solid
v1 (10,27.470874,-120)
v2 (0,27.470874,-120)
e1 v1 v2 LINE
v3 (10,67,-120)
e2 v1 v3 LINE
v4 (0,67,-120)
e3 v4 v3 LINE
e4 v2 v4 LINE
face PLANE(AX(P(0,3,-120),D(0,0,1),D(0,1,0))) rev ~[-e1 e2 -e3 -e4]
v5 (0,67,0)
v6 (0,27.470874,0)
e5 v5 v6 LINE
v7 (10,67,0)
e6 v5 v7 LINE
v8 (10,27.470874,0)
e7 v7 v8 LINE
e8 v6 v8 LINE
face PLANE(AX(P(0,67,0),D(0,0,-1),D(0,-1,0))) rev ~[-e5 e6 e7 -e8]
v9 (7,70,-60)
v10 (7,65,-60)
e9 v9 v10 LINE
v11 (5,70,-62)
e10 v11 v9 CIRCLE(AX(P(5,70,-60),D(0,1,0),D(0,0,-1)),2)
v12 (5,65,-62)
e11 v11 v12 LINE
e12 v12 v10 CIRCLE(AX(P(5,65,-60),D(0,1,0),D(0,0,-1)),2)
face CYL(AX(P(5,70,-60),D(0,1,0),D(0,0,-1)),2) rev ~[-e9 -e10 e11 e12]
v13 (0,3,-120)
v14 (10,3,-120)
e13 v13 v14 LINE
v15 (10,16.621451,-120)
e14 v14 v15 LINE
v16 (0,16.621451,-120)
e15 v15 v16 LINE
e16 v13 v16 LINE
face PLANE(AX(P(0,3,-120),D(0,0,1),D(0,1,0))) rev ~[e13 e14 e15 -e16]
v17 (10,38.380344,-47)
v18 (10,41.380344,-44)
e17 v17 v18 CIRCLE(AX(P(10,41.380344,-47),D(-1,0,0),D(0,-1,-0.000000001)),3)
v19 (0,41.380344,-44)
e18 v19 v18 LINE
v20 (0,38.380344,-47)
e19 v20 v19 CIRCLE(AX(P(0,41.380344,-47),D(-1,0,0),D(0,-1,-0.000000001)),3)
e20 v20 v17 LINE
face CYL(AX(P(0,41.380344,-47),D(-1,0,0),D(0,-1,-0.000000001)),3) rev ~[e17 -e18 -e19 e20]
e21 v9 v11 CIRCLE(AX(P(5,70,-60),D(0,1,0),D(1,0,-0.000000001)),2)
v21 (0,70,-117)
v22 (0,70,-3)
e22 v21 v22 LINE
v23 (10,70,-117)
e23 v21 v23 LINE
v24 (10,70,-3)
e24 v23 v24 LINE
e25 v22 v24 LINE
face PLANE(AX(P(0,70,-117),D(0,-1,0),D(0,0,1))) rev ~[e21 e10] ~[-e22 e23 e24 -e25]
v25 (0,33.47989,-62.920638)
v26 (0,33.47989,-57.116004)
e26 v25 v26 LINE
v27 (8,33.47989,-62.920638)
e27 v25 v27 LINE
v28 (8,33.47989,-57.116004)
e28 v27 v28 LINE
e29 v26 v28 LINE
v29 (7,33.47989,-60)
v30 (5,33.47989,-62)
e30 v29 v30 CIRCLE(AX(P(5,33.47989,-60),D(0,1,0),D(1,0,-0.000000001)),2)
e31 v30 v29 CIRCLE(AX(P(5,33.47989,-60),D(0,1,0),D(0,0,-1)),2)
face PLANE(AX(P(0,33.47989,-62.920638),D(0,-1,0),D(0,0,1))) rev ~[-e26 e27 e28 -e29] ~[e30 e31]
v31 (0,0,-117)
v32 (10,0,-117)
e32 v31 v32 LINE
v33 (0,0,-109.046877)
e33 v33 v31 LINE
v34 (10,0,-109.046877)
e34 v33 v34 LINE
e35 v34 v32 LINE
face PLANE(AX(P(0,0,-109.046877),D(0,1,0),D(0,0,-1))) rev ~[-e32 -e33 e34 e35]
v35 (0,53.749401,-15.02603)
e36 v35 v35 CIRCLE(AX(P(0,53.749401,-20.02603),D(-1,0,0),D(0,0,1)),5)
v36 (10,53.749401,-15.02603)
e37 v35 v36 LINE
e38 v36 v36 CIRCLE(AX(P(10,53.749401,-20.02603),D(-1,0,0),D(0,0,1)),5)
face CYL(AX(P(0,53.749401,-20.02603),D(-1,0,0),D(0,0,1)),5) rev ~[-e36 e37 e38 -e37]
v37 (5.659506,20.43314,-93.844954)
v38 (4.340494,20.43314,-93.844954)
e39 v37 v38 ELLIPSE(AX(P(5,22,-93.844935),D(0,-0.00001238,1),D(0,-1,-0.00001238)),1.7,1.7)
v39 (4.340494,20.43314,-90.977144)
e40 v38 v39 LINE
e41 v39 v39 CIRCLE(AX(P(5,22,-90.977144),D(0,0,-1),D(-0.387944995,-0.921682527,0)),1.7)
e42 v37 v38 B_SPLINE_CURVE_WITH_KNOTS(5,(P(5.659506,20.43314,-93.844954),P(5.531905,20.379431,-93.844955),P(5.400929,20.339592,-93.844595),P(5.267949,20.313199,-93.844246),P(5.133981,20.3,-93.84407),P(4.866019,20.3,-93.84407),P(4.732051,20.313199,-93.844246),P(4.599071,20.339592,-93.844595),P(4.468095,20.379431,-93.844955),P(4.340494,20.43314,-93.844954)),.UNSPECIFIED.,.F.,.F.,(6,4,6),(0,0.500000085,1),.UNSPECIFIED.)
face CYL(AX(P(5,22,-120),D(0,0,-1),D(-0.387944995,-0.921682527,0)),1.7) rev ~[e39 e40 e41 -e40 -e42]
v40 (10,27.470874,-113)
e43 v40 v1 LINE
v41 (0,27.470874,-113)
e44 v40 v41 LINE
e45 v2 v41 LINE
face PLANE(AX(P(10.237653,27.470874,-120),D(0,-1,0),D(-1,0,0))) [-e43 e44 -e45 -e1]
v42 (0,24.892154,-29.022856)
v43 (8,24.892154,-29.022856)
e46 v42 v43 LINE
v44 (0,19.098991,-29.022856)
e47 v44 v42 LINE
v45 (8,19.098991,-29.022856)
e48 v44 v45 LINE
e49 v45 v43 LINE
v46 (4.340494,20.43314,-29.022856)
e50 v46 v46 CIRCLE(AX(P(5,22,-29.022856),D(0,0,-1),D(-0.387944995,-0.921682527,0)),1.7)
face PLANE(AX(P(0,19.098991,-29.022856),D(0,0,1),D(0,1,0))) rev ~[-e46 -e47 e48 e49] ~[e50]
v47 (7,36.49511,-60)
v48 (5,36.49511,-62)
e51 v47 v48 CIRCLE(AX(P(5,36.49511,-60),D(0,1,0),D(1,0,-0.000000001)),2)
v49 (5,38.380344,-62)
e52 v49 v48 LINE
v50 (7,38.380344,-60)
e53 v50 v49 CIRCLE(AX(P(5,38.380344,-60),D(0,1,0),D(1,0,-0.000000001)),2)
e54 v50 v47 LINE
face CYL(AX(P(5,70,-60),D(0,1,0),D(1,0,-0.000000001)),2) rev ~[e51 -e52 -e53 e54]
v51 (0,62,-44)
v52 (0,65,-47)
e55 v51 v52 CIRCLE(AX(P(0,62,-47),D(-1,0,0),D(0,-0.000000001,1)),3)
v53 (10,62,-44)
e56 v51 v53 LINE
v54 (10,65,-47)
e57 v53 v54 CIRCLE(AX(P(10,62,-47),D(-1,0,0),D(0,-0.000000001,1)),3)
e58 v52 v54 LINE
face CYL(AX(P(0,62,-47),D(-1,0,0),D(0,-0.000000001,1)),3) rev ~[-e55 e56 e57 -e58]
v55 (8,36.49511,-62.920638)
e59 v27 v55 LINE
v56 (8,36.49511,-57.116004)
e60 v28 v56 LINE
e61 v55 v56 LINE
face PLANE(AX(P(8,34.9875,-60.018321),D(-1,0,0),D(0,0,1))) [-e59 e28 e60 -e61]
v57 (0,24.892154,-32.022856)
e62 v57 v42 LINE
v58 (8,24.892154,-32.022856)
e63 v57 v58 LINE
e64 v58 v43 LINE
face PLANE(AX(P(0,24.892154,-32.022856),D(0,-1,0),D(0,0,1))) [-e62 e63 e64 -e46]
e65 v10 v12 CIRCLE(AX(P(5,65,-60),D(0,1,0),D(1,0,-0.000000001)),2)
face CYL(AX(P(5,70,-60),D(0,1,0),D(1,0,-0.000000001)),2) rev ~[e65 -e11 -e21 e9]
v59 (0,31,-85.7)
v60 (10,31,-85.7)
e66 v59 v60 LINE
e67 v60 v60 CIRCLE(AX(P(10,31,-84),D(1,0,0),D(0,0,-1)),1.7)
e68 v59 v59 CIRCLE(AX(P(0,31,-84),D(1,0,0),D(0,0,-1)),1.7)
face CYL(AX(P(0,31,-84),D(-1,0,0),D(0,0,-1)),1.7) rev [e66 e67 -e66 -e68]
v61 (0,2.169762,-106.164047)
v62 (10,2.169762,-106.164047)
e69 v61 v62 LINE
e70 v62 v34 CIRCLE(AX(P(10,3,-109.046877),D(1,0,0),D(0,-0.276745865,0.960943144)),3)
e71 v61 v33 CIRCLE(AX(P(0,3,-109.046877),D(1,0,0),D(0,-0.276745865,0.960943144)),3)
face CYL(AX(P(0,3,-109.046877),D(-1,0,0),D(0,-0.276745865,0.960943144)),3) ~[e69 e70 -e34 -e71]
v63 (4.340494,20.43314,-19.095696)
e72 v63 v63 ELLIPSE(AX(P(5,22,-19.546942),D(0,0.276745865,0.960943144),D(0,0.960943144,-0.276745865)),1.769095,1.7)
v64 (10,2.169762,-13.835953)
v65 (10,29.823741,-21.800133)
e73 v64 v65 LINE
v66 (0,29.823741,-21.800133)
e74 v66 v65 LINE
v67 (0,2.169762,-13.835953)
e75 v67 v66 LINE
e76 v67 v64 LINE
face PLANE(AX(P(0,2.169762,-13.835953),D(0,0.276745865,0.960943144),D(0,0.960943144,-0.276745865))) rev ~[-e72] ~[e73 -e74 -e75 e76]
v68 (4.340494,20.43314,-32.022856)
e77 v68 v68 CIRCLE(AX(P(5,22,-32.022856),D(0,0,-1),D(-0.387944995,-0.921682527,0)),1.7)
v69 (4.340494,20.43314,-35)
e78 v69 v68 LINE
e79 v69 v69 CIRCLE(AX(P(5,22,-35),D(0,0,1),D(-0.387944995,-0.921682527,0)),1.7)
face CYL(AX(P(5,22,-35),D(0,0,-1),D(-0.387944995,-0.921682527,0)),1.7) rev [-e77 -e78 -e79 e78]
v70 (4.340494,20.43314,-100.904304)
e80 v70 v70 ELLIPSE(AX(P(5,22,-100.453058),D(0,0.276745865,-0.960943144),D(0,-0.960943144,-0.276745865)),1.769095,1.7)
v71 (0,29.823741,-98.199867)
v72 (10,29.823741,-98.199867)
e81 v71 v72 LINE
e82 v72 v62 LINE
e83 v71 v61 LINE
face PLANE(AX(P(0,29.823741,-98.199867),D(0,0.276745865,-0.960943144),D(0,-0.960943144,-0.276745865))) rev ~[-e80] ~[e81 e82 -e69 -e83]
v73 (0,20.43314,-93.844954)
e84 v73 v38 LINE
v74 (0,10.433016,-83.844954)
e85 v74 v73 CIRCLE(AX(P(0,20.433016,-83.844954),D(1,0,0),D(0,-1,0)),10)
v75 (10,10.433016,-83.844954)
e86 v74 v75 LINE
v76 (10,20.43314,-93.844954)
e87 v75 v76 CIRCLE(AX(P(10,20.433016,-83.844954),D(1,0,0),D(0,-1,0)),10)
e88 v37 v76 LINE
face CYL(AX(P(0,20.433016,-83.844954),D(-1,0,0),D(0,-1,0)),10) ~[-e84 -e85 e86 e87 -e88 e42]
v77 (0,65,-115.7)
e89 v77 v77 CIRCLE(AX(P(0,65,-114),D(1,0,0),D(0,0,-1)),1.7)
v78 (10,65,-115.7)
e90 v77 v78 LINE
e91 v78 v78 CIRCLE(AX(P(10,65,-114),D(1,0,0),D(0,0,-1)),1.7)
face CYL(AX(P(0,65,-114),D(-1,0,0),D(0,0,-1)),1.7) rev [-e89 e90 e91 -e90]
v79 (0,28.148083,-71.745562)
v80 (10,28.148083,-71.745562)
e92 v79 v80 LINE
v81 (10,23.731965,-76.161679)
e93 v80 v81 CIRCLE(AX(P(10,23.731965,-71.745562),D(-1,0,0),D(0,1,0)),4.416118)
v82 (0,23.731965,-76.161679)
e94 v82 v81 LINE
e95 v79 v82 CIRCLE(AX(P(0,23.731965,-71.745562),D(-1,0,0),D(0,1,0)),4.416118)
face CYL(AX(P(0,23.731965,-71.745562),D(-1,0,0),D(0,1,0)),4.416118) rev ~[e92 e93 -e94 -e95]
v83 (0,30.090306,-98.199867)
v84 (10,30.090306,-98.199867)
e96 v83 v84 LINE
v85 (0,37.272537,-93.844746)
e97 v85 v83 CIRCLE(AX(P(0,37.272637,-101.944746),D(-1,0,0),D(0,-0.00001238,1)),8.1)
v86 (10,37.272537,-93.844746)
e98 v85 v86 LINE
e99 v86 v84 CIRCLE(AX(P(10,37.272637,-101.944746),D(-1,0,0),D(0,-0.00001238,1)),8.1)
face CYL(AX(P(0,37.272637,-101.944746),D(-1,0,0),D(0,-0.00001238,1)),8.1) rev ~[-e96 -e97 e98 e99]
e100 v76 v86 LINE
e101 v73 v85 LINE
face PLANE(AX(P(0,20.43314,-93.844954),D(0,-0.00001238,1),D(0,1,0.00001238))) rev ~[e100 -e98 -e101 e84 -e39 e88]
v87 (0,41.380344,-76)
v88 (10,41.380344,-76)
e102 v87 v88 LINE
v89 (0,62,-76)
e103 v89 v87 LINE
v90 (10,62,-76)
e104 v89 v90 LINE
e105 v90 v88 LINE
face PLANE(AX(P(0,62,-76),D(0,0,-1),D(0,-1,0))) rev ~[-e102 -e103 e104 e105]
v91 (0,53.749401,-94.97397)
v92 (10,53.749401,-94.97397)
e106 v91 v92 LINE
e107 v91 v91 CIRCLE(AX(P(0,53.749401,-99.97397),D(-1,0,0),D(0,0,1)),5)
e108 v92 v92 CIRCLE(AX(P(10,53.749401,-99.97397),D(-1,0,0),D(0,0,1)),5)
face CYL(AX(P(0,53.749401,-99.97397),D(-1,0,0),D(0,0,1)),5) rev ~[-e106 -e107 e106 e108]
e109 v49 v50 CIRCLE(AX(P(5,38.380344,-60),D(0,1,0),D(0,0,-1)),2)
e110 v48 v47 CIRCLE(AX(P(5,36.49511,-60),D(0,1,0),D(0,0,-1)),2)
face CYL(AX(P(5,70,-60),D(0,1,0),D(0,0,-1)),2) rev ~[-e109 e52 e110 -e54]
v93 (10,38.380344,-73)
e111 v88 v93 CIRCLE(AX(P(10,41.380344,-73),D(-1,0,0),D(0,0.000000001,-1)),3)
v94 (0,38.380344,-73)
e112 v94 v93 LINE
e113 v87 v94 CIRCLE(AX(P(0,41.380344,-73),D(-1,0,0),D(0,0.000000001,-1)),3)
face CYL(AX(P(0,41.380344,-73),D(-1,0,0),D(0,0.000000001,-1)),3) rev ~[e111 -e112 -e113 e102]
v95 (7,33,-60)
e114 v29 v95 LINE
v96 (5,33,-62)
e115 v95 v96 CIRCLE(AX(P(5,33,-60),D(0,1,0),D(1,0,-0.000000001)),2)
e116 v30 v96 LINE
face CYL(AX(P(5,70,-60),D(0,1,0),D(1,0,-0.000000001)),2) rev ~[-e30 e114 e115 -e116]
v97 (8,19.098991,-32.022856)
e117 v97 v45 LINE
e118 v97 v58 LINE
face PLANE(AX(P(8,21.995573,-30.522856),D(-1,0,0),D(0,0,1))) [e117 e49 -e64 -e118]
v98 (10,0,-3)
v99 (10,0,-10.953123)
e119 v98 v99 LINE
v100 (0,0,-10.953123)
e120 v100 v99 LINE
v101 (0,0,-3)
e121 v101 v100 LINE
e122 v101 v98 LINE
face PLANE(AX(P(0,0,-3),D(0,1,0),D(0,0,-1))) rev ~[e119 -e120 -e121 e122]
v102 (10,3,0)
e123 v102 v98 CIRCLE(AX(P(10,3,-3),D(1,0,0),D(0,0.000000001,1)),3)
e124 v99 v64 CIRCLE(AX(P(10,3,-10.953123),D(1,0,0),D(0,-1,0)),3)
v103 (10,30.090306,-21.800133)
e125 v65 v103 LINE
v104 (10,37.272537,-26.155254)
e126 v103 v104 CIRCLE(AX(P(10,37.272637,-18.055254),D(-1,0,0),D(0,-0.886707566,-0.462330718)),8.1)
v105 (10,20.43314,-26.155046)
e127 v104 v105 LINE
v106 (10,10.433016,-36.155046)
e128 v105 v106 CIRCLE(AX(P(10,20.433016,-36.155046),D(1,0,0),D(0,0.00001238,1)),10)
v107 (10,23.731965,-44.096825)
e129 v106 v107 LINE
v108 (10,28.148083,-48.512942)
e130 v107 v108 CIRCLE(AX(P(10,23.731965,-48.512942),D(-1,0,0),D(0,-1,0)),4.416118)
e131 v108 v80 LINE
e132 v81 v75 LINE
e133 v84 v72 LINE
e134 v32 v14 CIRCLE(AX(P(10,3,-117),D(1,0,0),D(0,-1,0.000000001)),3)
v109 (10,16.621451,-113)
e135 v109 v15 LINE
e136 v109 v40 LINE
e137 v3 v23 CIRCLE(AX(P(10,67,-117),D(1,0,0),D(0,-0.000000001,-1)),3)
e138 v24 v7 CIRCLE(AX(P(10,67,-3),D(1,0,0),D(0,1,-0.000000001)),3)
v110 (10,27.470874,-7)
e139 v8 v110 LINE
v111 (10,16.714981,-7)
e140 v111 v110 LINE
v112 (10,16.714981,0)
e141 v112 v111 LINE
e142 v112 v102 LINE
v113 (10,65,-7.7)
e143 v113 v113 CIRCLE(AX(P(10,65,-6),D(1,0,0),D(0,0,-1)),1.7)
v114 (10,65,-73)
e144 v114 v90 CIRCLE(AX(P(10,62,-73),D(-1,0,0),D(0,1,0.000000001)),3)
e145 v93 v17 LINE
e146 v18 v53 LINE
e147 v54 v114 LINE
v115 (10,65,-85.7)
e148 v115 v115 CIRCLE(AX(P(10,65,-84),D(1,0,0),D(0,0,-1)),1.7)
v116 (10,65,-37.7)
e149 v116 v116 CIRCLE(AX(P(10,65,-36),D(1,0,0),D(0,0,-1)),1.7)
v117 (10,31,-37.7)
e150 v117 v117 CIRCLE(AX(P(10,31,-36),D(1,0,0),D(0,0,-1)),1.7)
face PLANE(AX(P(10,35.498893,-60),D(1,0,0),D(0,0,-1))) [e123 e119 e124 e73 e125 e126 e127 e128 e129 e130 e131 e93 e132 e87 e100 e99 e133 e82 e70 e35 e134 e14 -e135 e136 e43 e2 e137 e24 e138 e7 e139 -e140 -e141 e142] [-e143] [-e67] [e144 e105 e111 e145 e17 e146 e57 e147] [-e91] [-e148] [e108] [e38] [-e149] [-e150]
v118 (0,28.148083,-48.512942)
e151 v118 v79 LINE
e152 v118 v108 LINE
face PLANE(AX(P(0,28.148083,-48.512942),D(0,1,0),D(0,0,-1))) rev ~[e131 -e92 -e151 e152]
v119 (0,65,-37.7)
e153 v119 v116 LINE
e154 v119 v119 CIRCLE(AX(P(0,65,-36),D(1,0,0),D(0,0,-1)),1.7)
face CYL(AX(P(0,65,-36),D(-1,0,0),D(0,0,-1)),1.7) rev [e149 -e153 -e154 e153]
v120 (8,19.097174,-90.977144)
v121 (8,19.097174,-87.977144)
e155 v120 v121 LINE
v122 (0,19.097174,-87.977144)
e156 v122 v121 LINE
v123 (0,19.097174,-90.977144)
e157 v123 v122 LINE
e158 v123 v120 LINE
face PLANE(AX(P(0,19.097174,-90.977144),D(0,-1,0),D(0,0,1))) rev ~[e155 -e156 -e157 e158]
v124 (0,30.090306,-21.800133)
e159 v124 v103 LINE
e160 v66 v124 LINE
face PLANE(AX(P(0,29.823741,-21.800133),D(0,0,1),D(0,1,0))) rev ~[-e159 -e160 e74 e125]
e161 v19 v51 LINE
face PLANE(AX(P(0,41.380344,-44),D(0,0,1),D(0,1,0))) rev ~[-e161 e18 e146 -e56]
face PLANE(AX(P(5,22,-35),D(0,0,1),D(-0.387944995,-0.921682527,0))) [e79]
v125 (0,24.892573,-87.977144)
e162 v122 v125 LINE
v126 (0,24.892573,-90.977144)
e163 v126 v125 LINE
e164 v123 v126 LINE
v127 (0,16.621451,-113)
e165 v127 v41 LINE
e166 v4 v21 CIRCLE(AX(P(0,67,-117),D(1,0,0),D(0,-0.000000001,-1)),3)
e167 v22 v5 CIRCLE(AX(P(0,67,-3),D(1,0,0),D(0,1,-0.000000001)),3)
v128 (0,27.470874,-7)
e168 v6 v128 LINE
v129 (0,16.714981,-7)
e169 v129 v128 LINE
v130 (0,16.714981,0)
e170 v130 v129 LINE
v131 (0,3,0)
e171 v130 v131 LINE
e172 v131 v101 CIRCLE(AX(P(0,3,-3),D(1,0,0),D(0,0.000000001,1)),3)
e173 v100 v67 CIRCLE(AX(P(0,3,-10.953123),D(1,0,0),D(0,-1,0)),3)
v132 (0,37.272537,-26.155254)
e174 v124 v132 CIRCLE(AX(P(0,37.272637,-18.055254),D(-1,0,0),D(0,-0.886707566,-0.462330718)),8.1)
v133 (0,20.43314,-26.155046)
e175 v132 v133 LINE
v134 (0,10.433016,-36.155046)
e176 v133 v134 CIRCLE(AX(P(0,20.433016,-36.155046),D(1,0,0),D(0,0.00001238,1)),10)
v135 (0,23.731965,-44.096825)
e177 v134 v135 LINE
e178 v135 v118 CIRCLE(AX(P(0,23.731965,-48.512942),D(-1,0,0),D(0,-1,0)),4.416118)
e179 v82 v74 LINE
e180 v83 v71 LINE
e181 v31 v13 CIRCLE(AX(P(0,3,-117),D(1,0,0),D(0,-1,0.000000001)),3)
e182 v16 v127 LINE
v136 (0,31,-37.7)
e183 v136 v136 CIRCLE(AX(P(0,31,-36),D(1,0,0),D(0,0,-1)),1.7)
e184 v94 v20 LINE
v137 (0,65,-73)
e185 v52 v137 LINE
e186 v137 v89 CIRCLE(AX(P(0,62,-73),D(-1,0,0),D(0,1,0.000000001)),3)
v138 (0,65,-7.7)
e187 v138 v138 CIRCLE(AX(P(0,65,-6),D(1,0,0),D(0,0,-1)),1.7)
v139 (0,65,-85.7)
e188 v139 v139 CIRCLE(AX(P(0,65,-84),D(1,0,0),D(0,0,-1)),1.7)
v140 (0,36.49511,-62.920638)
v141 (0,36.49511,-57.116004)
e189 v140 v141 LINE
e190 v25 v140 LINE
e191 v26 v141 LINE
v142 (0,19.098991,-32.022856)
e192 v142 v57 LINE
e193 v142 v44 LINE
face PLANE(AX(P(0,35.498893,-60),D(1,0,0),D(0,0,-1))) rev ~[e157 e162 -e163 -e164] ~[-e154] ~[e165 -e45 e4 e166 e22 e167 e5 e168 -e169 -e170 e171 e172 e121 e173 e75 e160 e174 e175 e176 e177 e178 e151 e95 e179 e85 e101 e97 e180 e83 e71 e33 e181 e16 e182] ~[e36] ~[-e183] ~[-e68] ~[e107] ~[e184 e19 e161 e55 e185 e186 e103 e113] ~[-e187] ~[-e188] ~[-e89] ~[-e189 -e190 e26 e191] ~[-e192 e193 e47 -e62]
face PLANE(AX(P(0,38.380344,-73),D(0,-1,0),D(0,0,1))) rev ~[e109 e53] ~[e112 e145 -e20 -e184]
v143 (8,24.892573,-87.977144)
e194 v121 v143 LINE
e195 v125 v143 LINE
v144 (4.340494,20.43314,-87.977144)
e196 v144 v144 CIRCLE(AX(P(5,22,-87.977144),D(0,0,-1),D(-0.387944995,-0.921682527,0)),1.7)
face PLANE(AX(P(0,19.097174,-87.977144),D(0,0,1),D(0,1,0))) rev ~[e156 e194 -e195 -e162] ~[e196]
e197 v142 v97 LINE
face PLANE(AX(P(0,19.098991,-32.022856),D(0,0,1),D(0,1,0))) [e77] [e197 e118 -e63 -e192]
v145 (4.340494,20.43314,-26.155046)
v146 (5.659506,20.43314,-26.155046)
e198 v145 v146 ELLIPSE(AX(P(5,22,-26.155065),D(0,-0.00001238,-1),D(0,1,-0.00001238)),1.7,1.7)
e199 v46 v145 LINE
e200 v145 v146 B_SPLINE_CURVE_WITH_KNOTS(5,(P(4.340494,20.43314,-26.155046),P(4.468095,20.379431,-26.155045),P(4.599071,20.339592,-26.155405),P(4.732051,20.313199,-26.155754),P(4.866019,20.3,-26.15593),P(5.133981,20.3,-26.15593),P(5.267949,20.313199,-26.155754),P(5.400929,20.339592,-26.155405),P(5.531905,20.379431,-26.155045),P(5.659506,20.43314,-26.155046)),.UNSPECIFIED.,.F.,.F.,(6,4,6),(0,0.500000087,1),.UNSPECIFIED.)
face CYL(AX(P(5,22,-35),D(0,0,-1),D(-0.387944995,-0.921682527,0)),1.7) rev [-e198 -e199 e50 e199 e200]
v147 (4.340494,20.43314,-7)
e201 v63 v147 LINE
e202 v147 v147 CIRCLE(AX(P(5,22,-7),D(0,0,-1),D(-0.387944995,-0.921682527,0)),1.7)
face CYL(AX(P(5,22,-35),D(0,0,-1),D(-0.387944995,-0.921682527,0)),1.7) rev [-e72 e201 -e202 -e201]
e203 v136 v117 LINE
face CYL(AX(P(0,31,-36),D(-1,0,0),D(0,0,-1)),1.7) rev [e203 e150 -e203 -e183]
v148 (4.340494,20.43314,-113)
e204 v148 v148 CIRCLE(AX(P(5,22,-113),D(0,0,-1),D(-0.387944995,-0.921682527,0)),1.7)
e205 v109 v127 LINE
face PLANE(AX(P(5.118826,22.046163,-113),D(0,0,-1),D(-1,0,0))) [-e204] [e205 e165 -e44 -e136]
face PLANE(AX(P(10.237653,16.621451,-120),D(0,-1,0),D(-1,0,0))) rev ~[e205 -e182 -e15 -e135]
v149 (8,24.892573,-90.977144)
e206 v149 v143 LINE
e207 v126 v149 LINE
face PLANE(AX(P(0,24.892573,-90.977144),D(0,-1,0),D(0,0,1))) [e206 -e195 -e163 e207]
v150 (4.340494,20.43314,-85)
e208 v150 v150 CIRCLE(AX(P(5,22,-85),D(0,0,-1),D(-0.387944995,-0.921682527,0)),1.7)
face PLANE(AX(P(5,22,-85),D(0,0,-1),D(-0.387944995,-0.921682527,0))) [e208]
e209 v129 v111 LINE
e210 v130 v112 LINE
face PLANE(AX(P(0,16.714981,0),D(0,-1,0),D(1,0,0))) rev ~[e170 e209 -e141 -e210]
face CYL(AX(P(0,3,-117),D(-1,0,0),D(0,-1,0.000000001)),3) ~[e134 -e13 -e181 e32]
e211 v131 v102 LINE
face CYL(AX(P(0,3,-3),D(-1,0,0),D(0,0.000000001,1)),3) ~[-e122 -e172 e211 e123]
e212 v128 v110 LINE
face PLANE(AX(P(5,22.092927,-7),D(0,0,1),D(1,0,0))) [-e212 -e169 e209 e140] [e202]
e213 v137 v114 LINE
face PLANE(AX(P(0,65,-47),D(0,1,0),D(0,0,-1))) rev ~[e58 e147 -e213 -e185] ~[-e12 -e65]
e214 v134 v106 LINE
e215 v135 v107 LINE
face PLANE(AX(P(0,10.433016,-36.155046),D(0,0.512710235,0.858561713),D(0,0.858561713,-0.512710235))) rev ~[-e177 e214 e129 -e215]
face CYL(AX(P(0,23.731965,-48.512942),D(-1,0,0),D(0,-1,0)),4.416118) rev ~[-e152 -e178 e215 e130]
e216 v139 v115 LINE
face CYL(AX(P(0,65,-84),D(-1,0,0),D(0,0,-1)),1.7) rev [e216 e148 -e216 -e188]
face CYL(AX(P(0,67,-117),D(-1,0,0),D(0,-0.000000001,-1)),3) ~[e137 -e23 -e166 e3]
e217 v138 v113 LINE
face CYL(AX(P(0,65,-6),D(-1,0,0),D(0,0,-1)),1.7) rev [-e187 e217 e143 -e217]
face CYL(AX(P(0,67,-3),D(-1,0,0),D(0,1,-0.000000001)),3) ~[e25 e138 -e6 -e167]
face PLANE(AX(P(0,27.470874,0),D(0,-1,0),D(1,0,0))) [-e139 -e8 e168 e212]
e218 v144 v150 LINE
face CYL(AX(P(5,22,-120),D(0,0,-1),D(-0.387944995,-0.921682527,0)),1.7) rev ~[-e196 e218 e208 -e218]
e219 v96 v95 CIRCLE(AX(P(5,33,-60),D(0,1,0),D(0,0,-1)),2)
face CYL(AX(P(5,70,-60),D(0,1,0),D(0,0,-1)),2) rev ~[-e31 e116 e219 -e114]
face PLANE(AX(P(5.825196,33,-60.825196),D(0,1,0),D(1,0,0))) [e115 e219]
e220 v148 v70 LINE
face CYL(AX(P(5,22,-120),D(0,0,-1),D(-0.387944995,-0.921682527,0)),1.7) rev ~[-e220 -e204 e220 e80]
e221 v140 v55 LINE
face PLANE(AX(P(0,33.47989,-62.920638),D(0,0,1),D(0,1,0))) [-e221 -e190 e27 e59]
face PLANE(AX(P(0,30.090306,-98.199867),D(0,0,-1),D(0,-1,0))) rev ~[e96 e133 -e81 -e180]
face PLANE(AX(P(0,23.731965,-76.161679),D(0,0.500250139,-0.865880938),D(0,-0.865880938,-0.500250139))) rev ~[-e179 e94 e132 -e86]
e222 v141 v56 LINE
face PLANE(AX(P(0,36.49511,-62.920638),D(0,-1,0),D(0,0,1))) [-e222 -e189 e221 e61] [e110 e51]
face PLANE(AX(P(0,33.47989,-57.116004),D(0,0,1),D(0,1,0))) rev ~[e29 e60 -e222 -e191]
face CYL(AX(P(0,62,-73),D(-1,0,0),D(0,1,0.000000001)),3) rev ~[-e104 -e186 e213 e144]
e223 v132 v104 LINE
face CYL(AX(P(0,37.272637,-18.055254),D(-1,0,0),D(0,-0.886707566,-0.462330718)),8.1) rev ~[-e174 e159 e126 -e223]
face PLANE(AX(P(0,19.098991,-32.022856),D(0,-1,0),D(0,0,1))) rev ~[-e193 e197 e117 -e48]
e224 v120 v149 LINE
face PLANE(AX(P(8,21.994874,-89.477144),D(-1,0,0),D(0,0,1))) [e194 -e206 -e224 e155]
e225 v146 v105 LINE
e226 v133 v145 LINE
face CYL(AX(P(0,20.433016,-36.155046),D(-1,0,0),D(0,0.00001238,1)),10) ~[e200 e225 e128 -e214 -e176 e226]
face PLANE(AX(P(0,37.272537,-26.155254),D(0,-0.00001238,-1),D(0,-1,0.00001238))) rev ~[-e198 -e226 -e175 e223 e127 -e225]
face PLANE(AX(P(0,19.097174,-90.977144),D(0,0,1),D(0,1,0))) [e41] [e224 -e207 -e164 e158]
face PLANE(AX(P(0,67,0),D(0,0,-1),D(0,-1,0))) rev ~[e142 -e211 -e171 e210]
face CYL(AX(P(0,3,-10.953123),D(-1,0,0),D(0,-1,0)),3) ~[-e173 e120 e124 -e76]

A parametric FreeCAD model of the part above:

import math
import FreeCAD as App
import Part
import Sketcher
from FreeCAD import Vector

doc = App.newDocument("Part")
body = doc.addObject("PartDesign::Body", "Body")

sketch1 = body.newObject("Sketcher::SketchObject", "Sketch")
sketch1.AttachmentSupport = (doc.getObject("YZ_Plane"), [""])
sketch1.MapMode = "FlatFace"
sketch1.addGeometry([
    Part.LineSegment(Vector(0, -3, 0), Vector(0, -10.953123, 0)),
    Part.ArcOfCircle(Part.Circle(Vector(3, -10.953123, 0), Vector(0, 0, 1), 3), math.radians(180), math.radians(253.933917)),
    Part.LineSegment(Vector(2.169762, -13.835953, 0), Vector(29.823741, -21.800133, 0)),
    Part.LineSegment(Vector(29.823741, -21.800133, 0), Vector(30.090306, -21.800133, 0)),
    Part.ArcOfCircle(Part.Circle(Vector(37.272637, -18.055254, 0), Vector(0, 0, 1), 8.1), math.radians(-90.000709), math.radians(207.537607)),
    Part.LineSegment(Vector(37.272537, -26.155254, 0), Vector(20.43314, -26.155046, 0)),
    Part.ArcOfCircle(Part.Circle(Vector(20.433016, -36.155046, 0), Vector(0, 0, 1), 10), math.radians(89.999291), math.radians(180)),
    Part.LineSegment(Vector(10.433016, -36.155046, 0), Vector(10.433016, -83.844954, 0)),
    Part.ArcOfCircle(Part.Circle(Vector(20.433016, -83.844954, 0), Vector(0, 0, 1), 10), math.radians(180), math.radians(270.000709)),
    Part.LineSegment(Vector(20.43314, -93.844954, 0), Vector(37.272537, -93.844746, 0)),
    Part.ArcOfCircle(Part.Circle(Vector(37.272637, -101.944746, 0), Vector(0, 0, 1), 8.1), math.radians(152.462393), math.radians(450.000709)),
    Part.LineSegment(Vector(30.090306, -98.199867, 0), Vector(29.823741, -98.199867, 0)),
    Part.LineSegment(Vector(29.823741, -98.199867, 0), Vector(2.169762, -106.164047, 0)),
    Part.ArcOfCircle(Part.Circle(Vector(3, -109.046877, 0), Vector(0, 0, 1), 3), math.radians(106.066083), math.radians(180)),
    Part.LineSegment(Vector(0, -109.046877, 0), Vector(0, -117, 0)),
    Part.ArcOfCircle(Part.Circle(Vector(3, -117, 0), Vector(0, 0, 1), 3), math.radians(180), math.radians(270)),
    Part.LineSegment(Vector(3, -120, 0), Vector(67, -120, 0)),
    Part.ArcOfCircle(Part.Circle(Vector(67, -117, 0), Vector(0, 0, 1), 3), math.radians(-90), math.radians(0)),
    Part.LineSegment(Vector(70, -117, 0), Vector(70, -3, 0)),
    Part.ArcOfCircle(Part.Circle(Vector(67, -3, 0), Vector(0, 0, 1), 3), math.radians(0), math.radians(90)),
    Part.LineSegment(Vector(67, 0, 0), Vector(3, 0, 0)),
    Part.ArcOfCircle(Part.Circle(Vector(3, -3, 0), Vector(0, 0, 1), 3), math.radians(90), math.radians(180)),
    Part.Circle(Vector(31, -36, 0), Vector(0, 0, 1), 1.7),
    Part.ArcOfCircle(Part.Circle(Vector(23.731965, -48.512942, 0), Vector(0, 0, 1), 4.416118), math.radians(0), math.radians(180)),
    Part.LineSegment(Vector(28.148083, -48.512942, 0), Vector(28.148083, -71.745562, 0)),
    Part.ArcOfCircle(Part.Circle(Vector(23.731965, -71.745562, 0), Vector(0, 0, 1), 4.416118), math.radians(180), math.radians(360)),
    Part.LineSegment(Vector(19.315848, -71.745562, 0), Vector(19.315848, -48.512942, 0)),
    Part.Circle(Vector(31, -84, 0), Vector(0, 0, 1), 1.7),
    Part.Circle(Vector(65, -6, 0), Vector(0, 0, 1), 1.7),
    Part.Circle(Vector(65, -36, 0), Vector(0, 0, 1), 1.7),
    Part.ArcOfCircle(Part.Circle(Vector(62, -47, 0), Vector(0, 0, 1), 3), math.radians(0), math.radians(90)),
    Part.LineSegment(Vector(65, -47, 0), Vector(65, -73, 0)),
    Part.ArcOfCircle(Part.Circle(Vector(62, -73, 0), Vector(0, 0, 1), 3), math.radians(-90), math.radians(0)),
    Part.LineSegment(Vector(62, -76, 0), Vector(41.380344, -76, 0)),
    Part.ArcOfCircle(Part.Circle(Vector(41.380344, -73, 0), Vector(0, 0, 1), 3), math.radians(180), math.radians(270)),
    Part.LineSegment(Vector(38.380344, -73, 0), Vector(38.380344, -47, 0)),
    Part.ArcOfCircle(Part.Circle(Vector(41.380344, -47, 0), Vector(0, 0, 1), 3), math.radians(90), math.radians(180)),
    Part.LineSegment(Vector(41.380344, -44, 0), Vector(62, -44, 0)),
    Part.Circle(Vector(65, -84, 0), Vector(0, 0, 1), 1.7),
    Part.Circle(Vector(65, -114, 0), Vector(0, 0, 1), 1.7),
], False)
sketch1.addConstraint([
    Sketcher.Constraint("Coincident", 0, 2, 1, 1),
    Sketcher.Constraint("Coincident", 1, 2, 2, 1),
    Sketcher.Constraint("Coincident", 2, 2, 3, 1),
    Sketcher.Constraint("Coincident", 3, 2, 4, 2),
    Sketcher.Constraint("Coincident", 4, 1, 5, 1),
    Sketcher.Constraint("Coincident", 5, 2, 6, 1),
    Sketcher.Constraint("Coincident", 6, 2, 7, 1),
    Sketcher.Constraint("Coincident", 7, 2, 8, 1),
    Sketcher.Constraint("Coincident", 8, 2, 9, 1),
    Sketcher.Constraint("Coincident", 9, 2, 10, 2),
    Sketcher.Constraint("Coincident", 10, 1, 11, 1),
    Sketcher.Constraint("Coincident", 11, 2, 12, 1),
    Sketcher.Constraint("Coincident", 12, 2, 13, 1),
    Sketcher.Constraint("Coincident", 13, 2, 14, 1),
    Sketcher.Constraint("Coincident", 14, 2, 15, 1),
    Sketcher.Constraint("Coincident", 15, 2, 16, 1),
    Sketcher.Constraint("Coincident", 16, 2, 17, 1),
    Sketcher.Constraint("Coincident", 17, 2, 18, 1),
    Sketcher.Constraint("Coincident", 18, 2, 19, 1),
    Sketcher.Constraint("Coincident", 19, 2, 20, 1),
    Sketcher.Constraint("Coincident", 20, 2, 21, 1),
    Sketcher.Constraint("Coincident", 21, 2, 0, 1),
    Sketcher.Constraint("Coincident", 23, 1, 24, 1),
    Sketcher.Constraint("Coincident", 24, 2, 25, 2),
    Sketcher.Constraint("Coincident", 25, 1, 26, 1),
    Sketcher.Constraint("Coincident", 26, 2, 23, 2),
    Sketcher.Constraint("Coincident", 30, 1, 31, 1),
    Sketcher.Constraint("Coincident", 31, 2, 32, 2),
    Sketcher.Constraint("Coincident", 32, 1, 33, 1),
    Sketcher.Constraint("Coincident", 33, 2, 34, 2),
    Sketcher.Constraint("Coincident", 34, 1, 35, 1),
    Sketcher.Constraint("Coincident", 35, 2, 36, 2),
    Sketcher.Constraint("Coincident", 36, 1, 37, 1),
    Sketcher.Constraint("Coincident", 37, 2, 30, 2),
    Sketcher.Constraint("Vertical", 0),
    Sketcher.Constraint("Horizontal", 3),
    Sketcher.Constraint("Vertical", 7),
    Sketcher.Constraint("Horizontal", 11),
    Sketcher.Constraint("Vertical", 14),
    Sketcher.Constraint("Horizontal", 16),
    Sketcher.Constraint("Vertical", 18),
    Sketcher.Constraint("Horizontal", 20),
    Sketcher.Constraint("Vertical", 24),
    Sketcher.Constraint("Vertical", 26),
    Sketcher.Constraint("Vertical", 31),
    Sketcher.Constraint("Horizontal", 33),
    Sketcher.Constraint("Vertical", 35),
    Sketcher.Constraint("Horizontal", 37),
    Sketcher.Constraint("PointOnObject", 0, 2, -2),
    Sketcher.Constraint("PointOnObject", 13, 2, -2),
    Sketcher.Constraint("PointOnObject", 19, 2, -1),
    Sketcher.Constraint("Radius", 1, 3.0),
    Sketcher.Constraint("Radius", 6, 10.0),
    Sketcher.Constraint("Radius", 8, 10.0),
    Sketcher.Constraint("Radius", 13, 3.0),
    Sketcher.Constraint("Radius", 15, 3.0),
    Sketcher.Constraint("Radius", 17, 3.0),
    Sketcher.Constraint("Radius", 19, 3.0),
    Sketcher.Constraint("Radius", 21, 3.0),
    Sketcher.Constraint("Radius", 30, 3.0),
    Sketcher.Constraint("Radius", 32, 3.0),
    Sketcher.Constraint("Radius", 34, 3.0),
    Sketcher.Constraint("Radius", 36, 3.0),
    Sketcher.Constraint("Diameter", 22, 3.4),
    Sketcher.Constraint("Diameter", 27, 3.4),
    Sketcher.Constraint("Diameter", 28, 3.4),
    Sketcher.Constraint("Diameter", 29, 3.4),
    Sketcher.Constraint("Diameter", 38, 3.4),
    Sketcher.Constraint("Diameter", 39, 3.4),
    Sketcher.Constraint("Radius", 4, 8.1),
    Sketcher.Constraint("Radius", 10, 8.1),
    Sketcher.Constraint("DistanceX", 16, 1, 16, 2, 64.0),
    Sketcher.Constraint("DistanceX", 20, 2, 20, 1, 64.0),
    Sketcher.Constraint("DistanceY", 18, 1, 18, 2, 114.0),
    Sketcher.Constraint("DistanceY", 31, 2, 31, 1, 26.0),
    Sketcher.Constraint("DistanceY", 35, 1, 35, 2, 26.0),
    Sketcher.Constraint("DistanceY", 15, 3, -1, 1, 117.0),
    Sketcher.Constraint("DistanceX", -1, 1, 17, 3, 67.0),
    Sketcher.Constraint("DistanceX", -1, 1, 22, 3, 31.0),
    Sketcher.Constraint("DistanceY", 22, 3, -1, 1, 36.0),
    Sketcher.Constraint("DistanceX", -1, 1, 27, 3, 31.0),
    Sketcher.Constraint("DistanceY", 27, 3, -1, 1, 84.0),
    Sketcher.Constraint("DistanceX", -1, 1, 28, 3, 65.0),
    Sketcher.Constraint("DistanceY", 28, 3, -1, 1, 6.0),
    Sketcher.Constraint("DistanceX", -1, 1, 29, 3, 65.0),
    Sketcher.Constraint("DistanceY", 29, 3, -1, 1, 36.0),
    Sketcher.Constraint("DistanceX", -1, 1, 30, 3, 62.0),
    Sketcher.Constraint("DistanceY", 30, 3, -1, 1, 47.0),
    Sketcher.Constraint("DistanceY", 32, 3, -1, 1, 73.0),
    Sketcher.Constraint("DistanceX", -1, 1, 38, 3, 65.0),
    Sketcher.Constraint("DistanceY", 38, 3, -1, 1, 84.0),
    Sketcher.Constraint("DistanceX", -1, 1, 39, 3, 65.0),
    Sketcher.Constraint("DistanceY", 39, 3, -1, 1, 114.0),
    Sketcher.Constraint("DistanceY", 14, 2, -1, 1, 117.0),
    Sketcher.Constraint("DistanceX", -1, 1, 15, 2, 3.0),
    Sketcher.Constraint("DistanceY", 17, 2, -1, 1, 117.0),
    Sketcher.Constraint("DistanceX", -1, 1, 19, 2, 67.0),
    Sketcher.Constraint("DistanceY", 21, 2, -1, 1, 3.0),
    Sketcher.Constraint("DistanceY", 30, 1, -1, 1, 47.0),
    Sketcher.Constraint("DistanceX", -1, 1, 32, 1, 62.0),
    Sketcher.Constraint("DistanceY", 34, 1, -1, 1, 73.0),
    Sketcher.Constraint("DistanceX", -1, 1, 37, 2, 62.0),
    Sketcher.Constraint("DistanceY", 6, 2, 5, 2, 10.0),
    Sketcher.Constraint("DistanceY", 8, 2, 7, 2, 10.0),
    Sketcher.Constraint("DistanceX", 34, 1, 33, 2, 3.0),
    Sketcher.Constraint("DistanceX", 35, 2, 36, 1, 3.0),
    Sketcher.Constraint("Radius", 23, 4.416118),
    Sketcher.Constraint("DistanceY", 7, 2, 7, 1, 47.689909),
    Sketcher.Constraint("DistanceY", 24, 2, 24, 1, 23.232619),
    Sketcher.Constraint("DistanceY", 26, 1, 26, 2, 23.232619),
    Sketcher.Constraint("DistanceY", 8, 3, 4, 3, 65.7897),
    Sketcher.Constraint("DistanceY", 10, 3, 6, 3, 65.7897),
    Sketcher.Constraint("DistanceY", 4, 3, 1, 2, 4.219301),
    Sketcher.Constraint("DistanceX", 4, 1, 4, 3, 0.0001),
    Sketcher.Constraint("DistanceX", 5, 2, 2, 2, 9.390601),
    Sketcher.Constraint("DistanceX", 9, 2, 10, 3, 0.0001),
    Sketcher.Constraint("DistanceX", 8, 2, 11, 2, 9.390601),
    Sketcher.Constraint("DistanceX", 3, 1, 3, 2, 0.266565),
    Sketcher.Constraint("DistanceX", 11, 2, 11, 1, 0.266565),
    Sketcher.Constraint("DistanceX", 33, 2, 33, 1, 20.619656),
    Sketcher.Constraint("DistanceY", 0, 2, 0, 1, 7.953123),
    Sketcher.Constraint("DistanceY", 14, 2, 14, 1, 7.953123),
    Sketcher.Constraint("DistanceY", 25, 3, -1, 1, 71.745562),
    Sketcher.Constraint("DistanceX", -1, 1, 2, 2, 29.823741),
    Sketcher.Constraint("DistanceX", -1, 1, 8, 2, 20.43314),
    Sketcher.Constraint("DistanceY", 24, 2, -1, 1, 71.745562),
    Sketcher.Constraint("DistanceY", 25, 1, -1, 1, 71.745562),
    Sketcher.Constraint("DistanceY", 4, 3, 1, 3, 7.102131),
    Sketcher.Constraint("DistanceX", 6, 3, 4, 3, 16.839621),
    Sketcher.Constraint("DistanceX", 8, 3, 10, 3, 16.839621),
    Sketcher.Constraint("DistanceY", 13, 3, 10, 3, 7.102131),
    Sketcher.Constraint("DistanceX", 6, 3, 23, 3, 3.29895),
    Sketcher.Constraint("DistanceY", 23, 3, 4, 3, 30.457688),
    Sketcher.Constraint("DistanceY", 25, 3, 23, 3, 23.232619),
    Sketcher.Constraint("DistanceX", 25, 3, 34, 3, 17.648379),
    Sketcher.Constraint("DistanceY", 13, 3, 12, 2, 2.882829),
])
pad1 = body.newObject("PartDesign::Pad", "Pad")
pad1.Profile = sketch1
pad1.Length = 10

sketch2 = body.newObject("Sketcher::SketchObject", "Sketch001")
sketch2.AttachmentSupport = (doc.getObject("XZ_Plane"), [""])
sketch2.MapMode = "FlatFace"
sketch2.AttachmentOffset = App.Placement(Vector(0, 0, -70), App.Rotation())
sketch2.addGeometry([
    Part.ArcOfCircle(Part.Circle(Vector(5, -60, 0), Vector(0, 0, 1), 2), math.radians(-90), math.radians(0)),
    Part.ArcOfCircle(Part.Circle(Vector(5, -60, 0), Vector(0, 0, 1), 2), math.radians(0), math.radians(270)),
], False)
sketch2.addConstraint([
    Sketcher.Constraint("Tangent", 0, 1, 1, 2),
    Sketcher.Constraint("Coincident", 1, 1, 0, 2),
    Sketcher.Constraint("Horizontal", 0, 3, 1, 1),
    Sketcher.Constraint("Vertical", 1, 3, 0, 1),
    Sketcher.Constraint("Radius", 0, 2.0),
    Sketcher.Constraint("DistanceX", -1, 1, 0, 3, 5.0),
    Sketcher.Constraint("DistanceY", 0, 3, -1, 1, 60.0),
])
pocket1 = body.newObject("PartDesign::Pocket", "Pocket")
pocket1.Profile = sketch2
pocket1.Length = 37
pocket1.Reversed = True

sketch3 = body.newObject("Sketcher::SketchObject", "Sketch002")
sketch3.AttachmentSupport = (doc.getObject("YZ_Plane"), [""])
sketch3.MapMode = "FlatFace"
sketch3.addGeometry([
    Part.LineSegment(Vector(24.9, -91, 0), Vector(19.1, -91, 0)),
    Part.LineSegment(Vector(19.1, -91, 0), Vector(19.1, -88, 0)),
    Part.LineSegment(Vector(19.1, -88, 0), Vector(24.9, -88, 0)),
    Part.LineSegment(Vector(24.9, -88, 0), Vector(24.9, -91, 0)),
    Part.LineSegment(Vector(36.5, -62.9, 0), Vector(33.5, -62.9, 0)),
    Part.LineSegment(Vector(33.5, -62.9, 0), Vector(33.5, -57.1, 0)),
    Part.LineSegment(Vector(33.5, -57.1, 0), Vector(36.5, -57.1, 0)),
    Part.LineSegment(Vector(36.5, -57.1, 0), Vector(36.5, -62.9, 0)),
    Part.LineSegment(Vector(24.9, -32, 0), Vector(19.1, -32, 0)),
    Part.LineSegment(Vector(19.1, -32, 0), Vector(19.1, -29, 0)),
    Part.LineSegment(Vector(19.1, -29, 0), Vector(24.9, -29, 0)),
    Part.LineSegment(Vector(24.9, -29, 0), Vector(24.9, -32, 0)),
], False)
sketch3.addConstraint([
    Sketcher.Constraint("Coincident", 0, 2, 1, 1),
    Sketcher.Constraint("Coincident", 1, 2, 2, 1),
    Sketcher.Constraint("Coincident", 2, 2, 3, 1),
    Sketcher.Constraint("Coincident", 3, 2, 0, 1),
    Sketcher.Constraint("Coincident", 4, 2, 5, 1),
    Sketcher.Constraint("Coincident", 5, 2, 6, 1),
    Sketcher.Constraint("Coincident", 6, 2, 7, 1),
    Sketcher.Constraint("Coincident", 7, 2, 4, 1),
    Sketcher.Constraint("Coincident", 8, 2, 9, 1),
    Sketcher.Constraint("Coincident", 9, 2, 10, 1),
    Sketcher.Constraint("Coincident", 10, 2, 11, 1),
    Sketcher.Constraint("Coincident", 11, 2, 8, 1),
    Sketcher.Constraint("Horizontal", 0),
    Sketcher.Constraint("Vertical", 1),
    Sketcher.Constraint("Horizontal", 2),
    Sketcher.Constraint("Vertical", 3),
    Sketcher.Constraint("Horizontal", 4),
    Sketcher.Constraint("Vertical", 5),
    Sketcher.Constraint("Horizontal", 6),
    Sketcher.Constraint("Vertical", 7),
    Sketcher.Constraint("Horizontal", 8),
    Sketcher.Constraint("Vertical", 9),
    Sketcher.Constraint("Horizontal", 10),
    Sketcher.Constraint("Vertical", 11),
    Sketcher.Constraint("Equal", 3, 9),
    Sketcher.Constraint("DistanceY", 1, 1, 1, 2, 3.0),
    Sketcher.Constraint("DistanceX", 0, 2, 0, 1, 5.795399),
    Sketcher.Constraint("DistanceX", 4, 2, 4, 1, 3.01522),
    Sketcher.Constraint("DistanceX", 8, 2, 5, 2, 14.380899),
    Sketcher.Constraint("DistanceX", 8, 2, 8, 1, 5.793163),
    Sketcher.Constraint("DistanceY", 5, 1, 5, 2, 5.804634),
    Sketcher.Constraint("DistanceX", -1, 1, 4, 2, 33.47989),
    Sketcher.Constraint("DistanceY", 4, 2, -1, 1, 62.920638),
    Sketcher.Constraint("DistanceY", 2, 2, 5, 2, 30.86114),
    Sketcher.Constraint("DistanceX", -1, 1, 0, 2, 19.097174),
    Sketcher.Constraint("DistanceY", 8, 2, -1, 1, 32.022856),
])
pocket2 = body.newObject("PartDesign::Pocket", "Pocket001")
pocket2.Profile = sketch3
pocket2.Length = 8
pocket2.Reversed = True

sketch4 = body.newObject("Sketcher::SketchObject", "Sketch003")
sketch4.AttachmentSupport = (doc.getObject("XY_Plane"), [""])
sketch4.MapMode = "FlatFace"
sketch4.AttachmentOffset = App.Placement(Vector(0, 0, -120), App.Rotation())
sketch4.addGeometry(Part.Circle(Vector(5, 22, 0), Vector(0, 0, 1), 1.7), False)
sketch4.addConstraint([
    Sketcher.Constraint("Diameter", 0, 3.4),
    Sketcher.Constraint("DistanceX", -1, 1, 0, 3, 5.0),
    Sketcher.Constraint("DistanceY", -1, 1, 0, 3, 22.0),
])
pocket3 = body.newObject("PartDesign::Pocket", "Pocket002")
pocket3.Profile = sketch4
pocket3.Length = 35
pocket3.Reversed = True

sketch5 = body.newObject("Sketcher::SketchObject", "Sketch004")
sketch5.AttachmentSupport = (doc.getObject("XY_Plane"), [""])
sketch5.MapMode = "FlatFace"
sketch5.AttachmentOffset = App.Placement(Vector(0, 0, -35), App.Rotation())
sketch5.addGeometry(Part.Circle(Vector(5, 22, 0), Vector(0, 0, 1), 1.7), False)
sketch5.addConstraint([
    Sketcher.Constraint("Diameter", 0, 3.4),
    Sketcher.Constraint("DistanceX", -1, 1, 0, 3, 5.0),
    Sketcher.Constraint("DistanceY", -1, 1, 0, 3, 22.0),
])
pocket4 = body.newObject("PartDesign::Pocket", "Pocket003")
pocket4.Profile = sketch5
pocket4.Length = 35
pocket4.Reversed = True

sketch6 = body.newObject("Sketcher::SketchObject", "Sketch005")
sketch6.AttachmentSupport = (doc.getObject("YZ_Plane"), [""])
sketch6.MapMode = "FlatFace"
sketch6.addGeometry([
    Part.LineSegment(Vector(24, -76, 0), Vector(10, -84, 0)),
    Part.LineSegment(Vector(10, -84, 0), Vector(10, -36, 0)),
    Part.LineSegment(Vector(10, -36, 0), Vector(24, -44, 0)),
    Part.LineSegment(Vector(24, -44, 0), Vector(24, -76, 0)),
], False)
sketch6.addConstraint([
    Sketcher.Constraint("Coincident", 0, 2, 1, 1),
    Sketcher.Constraint("Coincident", 1, 2, 2, 1),
    Sketcher.Constraint("Coincident", 2, 2, 3, 1),
    Sketcher.Constraint("Coincident", 3, 2, 0, 1),
    Sketcher.Constraint("Vertical", 1),
    Sketcher.Constraint("Vertical", 3),
    Sketcher.Constraint("Distance", 2, 15.4898),
    Sketcher.Constraint("DistanceY", 1, 1, 1, 2, 47.689909),
    Sketcher.Constraint("DistanceY", 3, 2, 3, 1, 32.064855),
    Sketcher.Constraint("DistanceY", 3, 2, -1, 1, 76.161679),
    Sketcher.Constraint("DistanceX", 1, 2, 2, 2, 13.29895),
    Sketcher.Constraint("DistanceX", -1, 1, 0, 2, 10.433016),
])
pocket5 = body.newObject("PartDesign::Pocket", "Pocket004")
pocket5.Profile = sketch6
pocket5.Length = 10
pocket5.Reversed = True

sketch7 = body.newObject("Sketcher::SketchObject", "Sketch006")
sketch7.AttachmentSupport = (doc.getObject("YZ_Plane"), [""])
sketch7.MapMode = "FlatFace"
sketch7.addGeometry([
    Part.Circle(Vector(54, -100, 0), Vector(0, 0, 1), 5),
    Part.Circle(Vector(54, -20, 0), Vector(0, 0, 1), 5),
], False)
sketch7.addConstraint([
    Sketcher.Constraint("Equal", 0, 1),
    Sketcher.Constraint("Vertical", 0, 3, 1, 3),
    Sketcher.Constraint("Diameter", 0, 10.0),
    Sketcher.Constraint("DistanceX", -1, 1, 0, 3, 53.749401),
    Sketcher.Constraint("DistanceY", 0, 3, -1, 1, 99.97397),
    Sketcher.Constraint("DistanceY", 1, 3, -1, 1, 20.02603),
])
pocket6 = body.newObject("PartDesign::Pocket", "Pocket005")
pocket6.Profile = sketch7
pocket6.Length = 10
pocket6.Reversed = True

sketch8 = body.newObject("Sketcher::SketchObject", "Sketch007")
sketch8.AttachmentSupport = (doc.getObject("XY_Plane"), [""])
sketch8.MapMode = "FlatFace"
sketch8.addGeometry([
    Part.LineSegment(Vector(0, 27, 0), Vector(0, 17, 0)),
    Part.LineSegment(Vector(0, 17, 0), Vector(10, 17, 0)),
    Part.LineSegment(Vector(10, 17, 0), Vector(10, 27, 0)),
    Part.LineSegment(Vector(10, 27, 0), Vector(0, 27, 0)),
], False)
sketch8.addConstraint([
    Sketcher.Constraint("Coincident", 0, 2, 1, 1),
    Sketcher.Constraint("Coincident", 1, 2, 2, 1),
    Sketcher.Constraint("Coincident", 2, 2, 3, 1),
    Sketcher.Constraint("Coincident", 3, 2, 0, 1),
    Sketcher.Constraint("Vertical", 0),
    Sketcher.Constraint("Horizontal", 1),
    Sketcher.Constraint("Vertical", 2),
    Sketcher.Constraint("Horizontal", 3),
    Sketcher.Constraint("PointOnObject", 0, 2, -2),
    Sketcher.Constraint("DistanceX", 1, 1, 1, 2, 10.0),
    Sketcher.Constraint("DistanceY", 0, 2, 0, 1, 10.755894),
    Sketcher.Constraint("DistanceY", -1, 1, 0, 2, 16.714981),
])
pocket7 = body.newObject("PartDesign::Pocket", "Pocket006")
pocket7.Profile = sketch8
pocket7.Length = 7

sketch9 = body.newObject("Sketcher::SketchObject", "Sketch008")
sketch9.AttachmentSupport = (doc.getObject("XY_Plane"), [""])
sketch9.MapMode = "FlatFace"
sketch9.AttachmentOffset = App.Placement(Vector(0, 0, -120), App.Rotation())
sketch9.addGeometry([
    Part.LineSegment(Vector(10, 27, 0), Vector(10, 17, 0)),
    Part.LineSegment(Vector(10, 17, 0), Vector(0, 17, 0)),
    Part.LineSegment(Vector(0, 17, 0), Vector(0, 27, 0)),
    Part.LineSegment(Vector(0, 27, 0), Vector(10, 27, 0)),
], False)
sketch9.addConstraint([
    Sketcher.Constraint("Coincident", 0, 2, 1, 1),
    Sketcher.Constraint("Coincident", 1, 2, 2, 1),
    Sketcher.Constraint("Coincident", 2, 2, 3, 1),
    Sketcher.Constraint("Coincident", 3, 2, 0, 1),
    Sketcher.Constraint("Vertical", 0),
    Sketcher.Constraint("Horizontal", 1),
    Sketcher.Constraint("Vertical", 2),
    Sketcher.Constraint("Horizontal", 3),
    Sketcher.Constraint("PointOnObject", 1, 2, -2),
    Sketcher.Constraint("DistanceX", 1, 2, 1, 1, 10.237653),
    Sketcher.Constraint("DistanceY", 0, 2, 0, 1, 10.849423),
    Sketcher.Constraint("DistanceY", -1, 1, 0, 2, 16.621451),
])
pocket8 = body.newObject("PartDesign::Pocket", "Pocket007")
pocket8.Profile = sketch9
pocket8.Length = 7
pocket8.Reversed = True

doc.recompute()
